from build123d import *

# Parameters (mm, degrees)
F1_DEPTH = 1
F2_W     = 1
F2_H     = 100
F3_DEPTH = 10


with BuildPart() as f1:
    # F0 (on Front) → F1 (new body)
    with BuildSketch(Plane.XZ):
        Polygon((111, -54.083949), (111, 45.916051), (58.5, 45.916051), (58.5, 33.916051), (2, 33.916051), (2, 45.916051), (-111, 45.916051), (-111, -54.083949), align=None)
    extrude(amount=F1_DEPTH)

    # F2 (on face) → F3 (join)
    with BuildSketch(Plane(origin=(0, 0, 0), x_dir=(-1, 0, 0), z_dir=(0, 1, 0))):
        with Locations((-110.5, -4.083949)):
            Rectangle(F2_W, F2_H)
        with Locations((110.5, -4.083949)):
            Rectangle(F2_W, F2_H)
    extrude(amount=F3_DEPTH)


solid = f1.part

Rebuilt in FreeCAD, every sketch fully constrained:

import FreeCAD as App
import Part
import Sketcher
from FreeCAD import Vector
Q = App.Units.Quantity

doc = App.newDocument("Part")
body = doc.addObject("PartDesign::Body", "Body")

sketch1 = body.newObject("Sketcher::SketchObject", "Sketch")
sketch1.AttachmentSupport = (doc.getObject("XZ_Plane"), [""])
sketch1.MapMode = "FlatFace"
sketch1.addGeometry(Part.LineSegment(Vector(111, -54, 0), Vector(111, 46, 0)), False)
sketch1.addGeometry(Part.LineSegment(Vector(111, 46, 0), Vector(58, 46, 0)), False)
sketch1.addGeometry(Part.LineSegment(Vector(58, 46, 0), Vector(58, 34, 0)), False)
sketch1.addGeometry(Part.LineSegment(Vector(58, 34, 0), Vector(2, 34, 0)), False)
sketch1.addGeometry(Part.LineSegment(Vector(2, 34, 0), Vector(2, 46, 0)), False)
sketch1.addGeometry(Part.LineSegment(Vector(2, 46, 0), Vector(-111, 46, 0)), False)
sketch1.addGeometry(Part.LineSegment(Vector(-111, 46, 0), Vector(-111, -54, 0)), False)
sketch1.addGeometry(Part.LineSegment(Vector(-111, -54, 0), Vector(111, -54, 0)), False)
sketch1.addConstraint(Sketcher.Constraint("Coincident", 0, 2, 1, 1))
sketch1.addConstraint(Sketcher.Constraint("Coincident", 1, 2, 2, 1))
sketch1.addConstraint(Sketcher.Constraint("Coincident", 2, 2, 3, 1))
sketch1.addConstraint(Sketcher.Constraint("Coincident", 3, 2, 4, 1))
sketch1.addConstraint(Sketcher.Constraint("Coincident", 4, 2, 5, 1))
sketch1.addConstraint(Sketcher.Constraint("Coincident", 5, 2, 6, 1))
sketch1.addConstraint(Sketcher.Constraint("Coincident", 6, 2, 7, 1))
sketch1.addConstraint(Sketcher.Constraint("Coincident", 7, 2, 0, 1))
sketch1.addConstraint(Sketcher.Constraint("Vertical", 0))
sketch1.addConstraint(Sketcher.Constraint("Horizontal", 1))
sketch1.addConstraint(Sketcher.Constraint("Vertical", 2))
sketch1.addConstraint(Sketcher.Constraint("Horizontal", 3))
sketch1.addConstraint(Sketcher.Constraint("Vertical", 4))
sketch1.addConstraint(Sketcher.Constraint("Horizontal", 5))
sketch1.addConstraint(Sketcher.Constraint("Vertical", 6))
sketch1.addConstraint(Sketcher.Constraint("Horizontal", 7))
sketch1.addConstraint(Sketcher.Constraint("Symmetric", 0, 2, 5, 2, -2))
sketch1.addConstraint(Sketcher.Constraint("DistanceX", 5, 2, 5, 1, Q("113 mm")))
sketch1.addConstraint(Sketcher.Constraint("DistanceX", 7, 1, 7, 2, Q("222 mm")))
sketch1.addConstraint(Sketcher.Constraint("DistanceY", 0, 1, 0, 2, Q("100 mm")))
sketch1.addConstraint(Sketcher.Constraint("DistanceY", 2, 2, 2, 1, Q("12 mm")))
sketch1.addConstraint(Sketcher.Constraint("DistanceX", 1, 2, 1, 1, Q("52.5 mm")))
sketch1.addConstraint(Sketcher.Constraint("DistanceY", -1, 1, 0, 2, Q("45.916051 mm")))
pad1 = body.newObject("PartDesign::Pad", "Pad")
pad1.Profile = sketch1
pad1.Length = 1

sketch2 = body.newObject("Sketcher::SketchObject", "Sketch001")
sketch2.AttachmentSupport = (doc.getObject("XZ_Plane"), [""])
sketch2.MapMode = "FlatFace"
sketch2.addGeometry(Part.LineSegment(Vector(111, 45.9, 0), Vector(111, -54.1, 0)), False)
sketch2.addGeometry(Part.LineSegment(Vector(111, -54.1, 0), Vector(110, -54.1, 0)), False)
sketch2.addGeometry(Part.LineSegment(Vector(110, -54.1, 0), Vector(110, 45.9, 0)), False)
sketch2.addGeometry(Part.LineSegment(Vector(110, 45.9, 0), Vector(111, 45.9, 0)), False)
sketch2.addGeometry(Part.LineSegment(Vector(-110, 45.9, 0), Vector(-110, -54.1, 0)), False)
sketch2.addGeometry(Part.LineSegment(Vector(-110, -54.1, 0), Vector(-111, -54.1, 0)), False)
sketch2.addGeometry(Part.LineSegment(Vector(-111, -54.1, 0), Vector(-111, 45.9, 0)), False)
sketch2.addGeometry(Part.LineSegment(Vector(-111, 45.9, 0), Vector(-110, 45.9, 0)), False)
sketch2.addConstraint(Sketcher.Constraint("Coincident", 0, 2, 1, 1))
sketch2.addConstraint(Sketcher.Constraint("Coincident", 1, 2, 2, 1))
sketch2.addConstraint(Sketcher.Constraint("Coincident", 2, 2, 3, 1))
sketch2.addConstraint(Sketcher.Constraint("Coincident", 3, 2, 0, 1))
sketch2.addConstraint(Sketcher.Constraint("Coincident", 4, 2, 5, 1))
sketch2.addConstraint(Sketcher.Constraint("Coincident", 5, 2, 6, 1))
sketch2.addConstraint(Sketcher.Constraint("Coincident", 6, 2, 7, 1))
sketch2.addConstraint(Sketcher.Constraint("Coincident", 7, 2, 4, 1))
sketch2.addConstraint(Sketcher.Constraint("Vertical", 0))
sketch2.addConstraint(Sketcher.Constraint("Horizontal", 1))
sketch2.addConstraint(Sketcher.Constraint("Vertical", 2))
sketch2.addConstraint(Sketcher.Constraint("Horizontal", 3))
sketch2.addConstraint(Sketcher.Constraint("Vertical", 4))
sketch2.addConstraint(Sketcher.Constraint("Horizontal", 5))
sketch2.addConstraint(Sketcher.Constraint("Vertical", 6))
sketch2.addConstraint(Sketcher.Constraint("Horizontal", 7))
sketch2.addConstraint(Sketcher.Constraint("Symmetric", 1, 2, 4, 2, -2))
sketch2.addConstraint(Sketcher.Constraint("Symmetric", 3, 2, 6, 2, -2))
sketch2.addConstraint(Sketcher.Constraint("DistanceX", 1, 2, 1, 1, Q("1 mm")))
sketch2.addConstraint(Sketcher.Constraint("DistanceY", 0, 2, 0, 1, Q("100 mm")))
sketch2.addConstraint(Sketcher.Constraint("DistanceX", -1, 1, 0, 2, Q("111 mm")))
sketch2.addConstraint(Sketcher.Constraint("DistanceY", 0, 2, -1, 1, Q("54.083949 mm")))
pad2 = body.newObject("PartDesign::Pad", "Pad001")
pad2.Profile = sketch2
pad2.Length = 10
pad2.Reversed = True

doc.recompute()
